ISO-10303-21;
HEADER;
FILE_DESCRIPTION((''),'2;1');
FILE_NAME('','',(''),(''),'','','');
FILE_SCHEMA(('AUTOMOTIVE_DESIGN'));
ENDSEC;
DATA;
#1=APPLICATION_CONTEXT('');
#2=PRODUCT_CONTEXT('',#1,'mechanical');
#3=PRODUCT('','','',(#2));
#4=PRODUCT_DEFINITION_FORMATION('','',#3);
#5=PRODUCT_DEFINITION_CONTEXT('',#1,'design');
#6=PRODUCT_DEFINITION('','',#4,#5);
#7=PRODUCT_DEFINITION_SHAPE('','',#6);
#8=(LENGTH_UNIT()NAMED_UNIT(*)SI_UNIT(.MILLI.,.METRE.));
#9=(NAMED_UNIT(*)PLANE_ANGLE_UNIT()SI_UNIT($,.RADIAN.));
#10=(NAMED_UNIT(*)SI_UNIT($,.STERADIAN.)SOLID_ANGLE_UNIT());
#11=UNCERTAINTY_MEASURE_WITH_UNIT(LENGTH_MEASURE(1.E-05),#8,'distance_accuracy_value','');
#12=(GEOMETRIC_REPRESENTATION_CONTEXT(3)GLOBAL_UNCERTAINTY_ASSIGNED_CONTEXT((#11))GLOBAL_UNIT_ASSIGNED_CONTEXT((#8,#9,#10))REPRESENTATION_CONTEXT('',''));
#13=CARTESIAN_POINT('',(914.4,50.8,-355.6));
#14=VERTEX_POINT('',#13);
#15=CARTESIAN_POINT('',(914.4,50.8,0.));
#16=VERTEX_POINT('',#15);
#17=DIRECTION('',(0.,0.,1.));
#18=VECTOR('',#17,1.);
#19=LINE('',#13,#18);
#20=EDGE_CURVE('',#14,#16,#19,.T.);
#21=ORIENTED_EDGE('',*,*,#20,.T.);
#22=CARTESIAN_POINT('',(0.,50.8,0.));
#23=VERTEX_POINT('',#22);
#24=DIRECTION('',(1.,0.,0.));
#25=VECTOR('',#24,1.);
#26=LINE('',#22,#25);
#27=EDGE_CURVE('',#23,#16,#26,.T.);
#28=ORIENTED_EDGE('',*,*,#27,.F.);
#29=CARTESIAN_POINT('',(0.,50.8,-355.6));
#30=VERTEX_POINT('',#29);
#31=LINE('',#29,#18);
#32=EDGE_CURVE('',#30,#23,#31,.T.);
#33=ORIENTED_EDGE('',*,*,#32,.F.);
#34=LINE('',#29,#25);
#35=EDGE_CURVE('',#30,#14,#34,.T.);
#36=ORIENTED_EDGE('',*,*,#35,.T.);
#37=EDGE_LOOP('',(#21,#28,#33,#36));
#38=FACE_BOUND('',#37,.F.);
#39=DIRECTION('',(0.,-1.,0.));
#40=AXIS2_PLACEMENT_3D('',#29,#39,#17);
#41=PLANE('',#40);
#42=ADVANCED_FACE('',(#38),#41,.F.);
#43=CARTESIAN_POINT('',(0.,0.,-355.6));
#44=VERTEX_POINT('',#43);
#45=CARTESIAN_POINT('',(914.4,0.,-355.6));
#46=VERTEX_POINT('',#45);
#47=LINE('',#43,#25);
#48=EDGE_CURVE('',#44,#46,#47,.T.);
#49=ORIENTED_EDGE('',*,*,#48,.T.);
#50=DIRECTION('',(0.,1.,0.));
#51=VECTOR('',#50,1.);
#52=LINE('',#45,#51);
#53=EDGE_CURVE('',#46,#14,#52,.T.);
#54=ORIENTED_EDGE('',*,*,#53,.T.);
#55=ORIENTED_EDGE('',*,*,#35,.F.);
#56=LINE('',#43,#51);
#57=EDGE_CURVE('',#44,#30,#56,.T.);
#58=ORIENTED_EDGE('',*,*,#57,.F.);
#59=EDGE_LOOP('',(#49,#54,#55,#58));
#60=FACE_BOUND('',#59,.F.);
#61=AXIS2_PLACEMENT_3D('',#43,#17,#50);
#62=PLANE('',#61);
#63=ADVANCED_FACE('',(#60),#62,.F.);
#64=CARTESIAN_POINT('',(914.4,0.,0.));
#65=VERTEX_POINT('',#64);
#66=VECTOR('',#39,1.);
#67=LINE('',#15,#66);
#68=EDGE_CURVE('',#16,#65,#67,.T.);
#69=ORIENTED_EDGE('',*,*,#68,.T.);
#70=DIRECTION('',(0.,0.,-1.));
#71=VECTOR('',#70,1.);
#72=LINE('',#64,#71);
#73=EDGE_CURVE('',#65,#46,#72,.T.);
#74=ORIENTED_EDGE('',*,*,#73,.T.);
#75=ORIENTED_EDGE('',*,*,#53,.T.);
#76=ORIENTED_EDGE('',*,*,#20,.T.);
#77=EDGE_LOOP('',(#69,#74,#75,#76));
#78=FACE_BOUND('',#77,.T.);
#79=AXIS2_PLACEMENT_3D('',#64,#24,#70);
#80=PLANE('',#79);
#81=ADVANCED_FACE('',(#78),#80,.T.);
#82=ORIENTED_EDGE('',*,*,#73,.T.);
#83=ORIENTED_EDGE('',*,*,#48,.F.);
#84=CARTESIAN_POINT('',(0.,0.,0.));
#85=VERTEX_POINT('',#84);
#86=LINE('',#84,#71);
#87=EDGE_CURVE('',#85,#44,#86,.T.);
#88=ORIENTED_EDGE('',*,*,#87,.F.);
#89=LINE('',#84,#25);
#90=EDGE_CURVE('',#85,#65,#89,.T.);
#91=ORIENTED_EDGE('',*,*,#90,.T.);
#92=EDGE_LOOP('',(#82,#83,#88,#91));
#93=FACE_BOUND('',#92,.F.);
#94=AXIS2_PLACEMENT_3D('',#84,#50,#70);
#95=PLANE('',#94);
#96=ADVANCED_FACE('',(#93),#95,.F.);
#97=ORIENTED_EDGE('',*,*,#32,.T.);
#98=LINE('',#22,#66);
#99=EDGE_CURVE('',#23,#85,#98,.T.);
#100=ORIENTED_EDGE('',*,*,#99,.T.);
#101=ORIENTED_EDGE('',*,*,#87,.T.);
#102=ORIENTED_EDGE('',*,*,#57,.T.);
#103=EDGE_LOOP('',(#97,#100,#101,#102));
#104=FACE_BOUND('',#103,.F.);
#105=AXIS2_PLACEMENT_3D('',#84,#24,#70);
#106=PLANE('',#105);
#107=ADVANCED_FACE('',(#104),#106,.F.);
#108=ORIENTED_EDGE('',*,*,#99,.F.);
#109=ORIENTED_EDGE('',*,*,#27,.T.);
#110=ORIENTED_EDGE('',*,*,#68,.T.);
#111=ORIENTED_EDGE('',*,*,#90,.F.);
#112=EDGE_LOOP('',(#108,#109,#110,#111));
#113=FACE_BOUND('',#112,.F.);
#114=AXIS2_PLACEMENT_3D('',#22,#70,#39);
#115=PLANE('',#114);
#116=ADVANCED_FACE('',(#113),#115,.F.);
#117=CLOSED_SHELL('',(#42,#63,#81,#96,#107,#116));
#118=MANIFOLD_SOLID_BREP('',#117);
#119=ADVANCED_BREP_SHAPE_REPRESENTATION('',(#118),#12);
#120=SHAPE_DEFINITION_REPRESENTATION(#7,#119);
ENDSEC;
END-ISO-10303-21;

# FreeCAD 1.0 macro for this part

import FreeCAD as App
import Part
import Sketcher

V = App.Vector
Q = App.Units.Quantity

doc = App.newDocument("Part")
body = doc.addObject("PartDesign::Body", "Body")

sketch1 = body.newObject("Sketcher::SketchObject", "Sketch")
sketch1.AttachmentSupport = (doc.getObject("YZ_Plane"), [""])
sketch1.MapMode = "FlatFace"
sketch1.addGeometry(Part.LineSegment(V(51, 0, 0), V(0, 0, 0)), False)
sketch1.addGeometry(Part.LineSegment(V(0, 0, 0), V(0, -356, 0)), False)
sketch1.addGeometry(Part.LineSegment(V(0, -356, 0), V(51, -356, 0)), False)
sketch1.addGeometry(Part.LineSegment(V(51, -356, 0), V(51, 0, 0)), False)
sketch1.addConstraint(Sketcher.Constraint("Coincident", 0, 2, 1, 1))
sketch1.addConstraint(Sketcher.Constraint("Coincident", 1, 2, 2, 1))
sketch1.addConstraint(Sketcher.Constraint("Coincident", 2, 2, 3, 1))
sketch1.addConstraint(Sketcher.Constraint("Coincident", 3, 2, 0, 1))
sketch1.addConstraint(Sketcher.Constraint("Horizontal", 0))
sketch1.addConstraint(Sketcher.Constraint("Vertical", 1))
sketch1.addConstraint(Sketcher.Constraint("Horizontal", 2))
sketch1.addConstraint(Sketcher.Constraint("Vertical", 3))
sketch1.addConstraint(Sketcher.Constraint("Coincident", 0, 2, -1, 1))
sketch1.addConstraint(Sketcher.Constraint("DistanceX", 0, 2, 0, 1, Q("2 in")))
sketch1.addConstraint(Sketcher.Constraint("DistanceY", 1, 2, 1, 1, Q("14 in")))
pad1 = body.newObject("PartDesign::Pad", "Pad")
pad1.Profile = sketch1
pad1.Length = Q("36 in")

doc.recompute()
